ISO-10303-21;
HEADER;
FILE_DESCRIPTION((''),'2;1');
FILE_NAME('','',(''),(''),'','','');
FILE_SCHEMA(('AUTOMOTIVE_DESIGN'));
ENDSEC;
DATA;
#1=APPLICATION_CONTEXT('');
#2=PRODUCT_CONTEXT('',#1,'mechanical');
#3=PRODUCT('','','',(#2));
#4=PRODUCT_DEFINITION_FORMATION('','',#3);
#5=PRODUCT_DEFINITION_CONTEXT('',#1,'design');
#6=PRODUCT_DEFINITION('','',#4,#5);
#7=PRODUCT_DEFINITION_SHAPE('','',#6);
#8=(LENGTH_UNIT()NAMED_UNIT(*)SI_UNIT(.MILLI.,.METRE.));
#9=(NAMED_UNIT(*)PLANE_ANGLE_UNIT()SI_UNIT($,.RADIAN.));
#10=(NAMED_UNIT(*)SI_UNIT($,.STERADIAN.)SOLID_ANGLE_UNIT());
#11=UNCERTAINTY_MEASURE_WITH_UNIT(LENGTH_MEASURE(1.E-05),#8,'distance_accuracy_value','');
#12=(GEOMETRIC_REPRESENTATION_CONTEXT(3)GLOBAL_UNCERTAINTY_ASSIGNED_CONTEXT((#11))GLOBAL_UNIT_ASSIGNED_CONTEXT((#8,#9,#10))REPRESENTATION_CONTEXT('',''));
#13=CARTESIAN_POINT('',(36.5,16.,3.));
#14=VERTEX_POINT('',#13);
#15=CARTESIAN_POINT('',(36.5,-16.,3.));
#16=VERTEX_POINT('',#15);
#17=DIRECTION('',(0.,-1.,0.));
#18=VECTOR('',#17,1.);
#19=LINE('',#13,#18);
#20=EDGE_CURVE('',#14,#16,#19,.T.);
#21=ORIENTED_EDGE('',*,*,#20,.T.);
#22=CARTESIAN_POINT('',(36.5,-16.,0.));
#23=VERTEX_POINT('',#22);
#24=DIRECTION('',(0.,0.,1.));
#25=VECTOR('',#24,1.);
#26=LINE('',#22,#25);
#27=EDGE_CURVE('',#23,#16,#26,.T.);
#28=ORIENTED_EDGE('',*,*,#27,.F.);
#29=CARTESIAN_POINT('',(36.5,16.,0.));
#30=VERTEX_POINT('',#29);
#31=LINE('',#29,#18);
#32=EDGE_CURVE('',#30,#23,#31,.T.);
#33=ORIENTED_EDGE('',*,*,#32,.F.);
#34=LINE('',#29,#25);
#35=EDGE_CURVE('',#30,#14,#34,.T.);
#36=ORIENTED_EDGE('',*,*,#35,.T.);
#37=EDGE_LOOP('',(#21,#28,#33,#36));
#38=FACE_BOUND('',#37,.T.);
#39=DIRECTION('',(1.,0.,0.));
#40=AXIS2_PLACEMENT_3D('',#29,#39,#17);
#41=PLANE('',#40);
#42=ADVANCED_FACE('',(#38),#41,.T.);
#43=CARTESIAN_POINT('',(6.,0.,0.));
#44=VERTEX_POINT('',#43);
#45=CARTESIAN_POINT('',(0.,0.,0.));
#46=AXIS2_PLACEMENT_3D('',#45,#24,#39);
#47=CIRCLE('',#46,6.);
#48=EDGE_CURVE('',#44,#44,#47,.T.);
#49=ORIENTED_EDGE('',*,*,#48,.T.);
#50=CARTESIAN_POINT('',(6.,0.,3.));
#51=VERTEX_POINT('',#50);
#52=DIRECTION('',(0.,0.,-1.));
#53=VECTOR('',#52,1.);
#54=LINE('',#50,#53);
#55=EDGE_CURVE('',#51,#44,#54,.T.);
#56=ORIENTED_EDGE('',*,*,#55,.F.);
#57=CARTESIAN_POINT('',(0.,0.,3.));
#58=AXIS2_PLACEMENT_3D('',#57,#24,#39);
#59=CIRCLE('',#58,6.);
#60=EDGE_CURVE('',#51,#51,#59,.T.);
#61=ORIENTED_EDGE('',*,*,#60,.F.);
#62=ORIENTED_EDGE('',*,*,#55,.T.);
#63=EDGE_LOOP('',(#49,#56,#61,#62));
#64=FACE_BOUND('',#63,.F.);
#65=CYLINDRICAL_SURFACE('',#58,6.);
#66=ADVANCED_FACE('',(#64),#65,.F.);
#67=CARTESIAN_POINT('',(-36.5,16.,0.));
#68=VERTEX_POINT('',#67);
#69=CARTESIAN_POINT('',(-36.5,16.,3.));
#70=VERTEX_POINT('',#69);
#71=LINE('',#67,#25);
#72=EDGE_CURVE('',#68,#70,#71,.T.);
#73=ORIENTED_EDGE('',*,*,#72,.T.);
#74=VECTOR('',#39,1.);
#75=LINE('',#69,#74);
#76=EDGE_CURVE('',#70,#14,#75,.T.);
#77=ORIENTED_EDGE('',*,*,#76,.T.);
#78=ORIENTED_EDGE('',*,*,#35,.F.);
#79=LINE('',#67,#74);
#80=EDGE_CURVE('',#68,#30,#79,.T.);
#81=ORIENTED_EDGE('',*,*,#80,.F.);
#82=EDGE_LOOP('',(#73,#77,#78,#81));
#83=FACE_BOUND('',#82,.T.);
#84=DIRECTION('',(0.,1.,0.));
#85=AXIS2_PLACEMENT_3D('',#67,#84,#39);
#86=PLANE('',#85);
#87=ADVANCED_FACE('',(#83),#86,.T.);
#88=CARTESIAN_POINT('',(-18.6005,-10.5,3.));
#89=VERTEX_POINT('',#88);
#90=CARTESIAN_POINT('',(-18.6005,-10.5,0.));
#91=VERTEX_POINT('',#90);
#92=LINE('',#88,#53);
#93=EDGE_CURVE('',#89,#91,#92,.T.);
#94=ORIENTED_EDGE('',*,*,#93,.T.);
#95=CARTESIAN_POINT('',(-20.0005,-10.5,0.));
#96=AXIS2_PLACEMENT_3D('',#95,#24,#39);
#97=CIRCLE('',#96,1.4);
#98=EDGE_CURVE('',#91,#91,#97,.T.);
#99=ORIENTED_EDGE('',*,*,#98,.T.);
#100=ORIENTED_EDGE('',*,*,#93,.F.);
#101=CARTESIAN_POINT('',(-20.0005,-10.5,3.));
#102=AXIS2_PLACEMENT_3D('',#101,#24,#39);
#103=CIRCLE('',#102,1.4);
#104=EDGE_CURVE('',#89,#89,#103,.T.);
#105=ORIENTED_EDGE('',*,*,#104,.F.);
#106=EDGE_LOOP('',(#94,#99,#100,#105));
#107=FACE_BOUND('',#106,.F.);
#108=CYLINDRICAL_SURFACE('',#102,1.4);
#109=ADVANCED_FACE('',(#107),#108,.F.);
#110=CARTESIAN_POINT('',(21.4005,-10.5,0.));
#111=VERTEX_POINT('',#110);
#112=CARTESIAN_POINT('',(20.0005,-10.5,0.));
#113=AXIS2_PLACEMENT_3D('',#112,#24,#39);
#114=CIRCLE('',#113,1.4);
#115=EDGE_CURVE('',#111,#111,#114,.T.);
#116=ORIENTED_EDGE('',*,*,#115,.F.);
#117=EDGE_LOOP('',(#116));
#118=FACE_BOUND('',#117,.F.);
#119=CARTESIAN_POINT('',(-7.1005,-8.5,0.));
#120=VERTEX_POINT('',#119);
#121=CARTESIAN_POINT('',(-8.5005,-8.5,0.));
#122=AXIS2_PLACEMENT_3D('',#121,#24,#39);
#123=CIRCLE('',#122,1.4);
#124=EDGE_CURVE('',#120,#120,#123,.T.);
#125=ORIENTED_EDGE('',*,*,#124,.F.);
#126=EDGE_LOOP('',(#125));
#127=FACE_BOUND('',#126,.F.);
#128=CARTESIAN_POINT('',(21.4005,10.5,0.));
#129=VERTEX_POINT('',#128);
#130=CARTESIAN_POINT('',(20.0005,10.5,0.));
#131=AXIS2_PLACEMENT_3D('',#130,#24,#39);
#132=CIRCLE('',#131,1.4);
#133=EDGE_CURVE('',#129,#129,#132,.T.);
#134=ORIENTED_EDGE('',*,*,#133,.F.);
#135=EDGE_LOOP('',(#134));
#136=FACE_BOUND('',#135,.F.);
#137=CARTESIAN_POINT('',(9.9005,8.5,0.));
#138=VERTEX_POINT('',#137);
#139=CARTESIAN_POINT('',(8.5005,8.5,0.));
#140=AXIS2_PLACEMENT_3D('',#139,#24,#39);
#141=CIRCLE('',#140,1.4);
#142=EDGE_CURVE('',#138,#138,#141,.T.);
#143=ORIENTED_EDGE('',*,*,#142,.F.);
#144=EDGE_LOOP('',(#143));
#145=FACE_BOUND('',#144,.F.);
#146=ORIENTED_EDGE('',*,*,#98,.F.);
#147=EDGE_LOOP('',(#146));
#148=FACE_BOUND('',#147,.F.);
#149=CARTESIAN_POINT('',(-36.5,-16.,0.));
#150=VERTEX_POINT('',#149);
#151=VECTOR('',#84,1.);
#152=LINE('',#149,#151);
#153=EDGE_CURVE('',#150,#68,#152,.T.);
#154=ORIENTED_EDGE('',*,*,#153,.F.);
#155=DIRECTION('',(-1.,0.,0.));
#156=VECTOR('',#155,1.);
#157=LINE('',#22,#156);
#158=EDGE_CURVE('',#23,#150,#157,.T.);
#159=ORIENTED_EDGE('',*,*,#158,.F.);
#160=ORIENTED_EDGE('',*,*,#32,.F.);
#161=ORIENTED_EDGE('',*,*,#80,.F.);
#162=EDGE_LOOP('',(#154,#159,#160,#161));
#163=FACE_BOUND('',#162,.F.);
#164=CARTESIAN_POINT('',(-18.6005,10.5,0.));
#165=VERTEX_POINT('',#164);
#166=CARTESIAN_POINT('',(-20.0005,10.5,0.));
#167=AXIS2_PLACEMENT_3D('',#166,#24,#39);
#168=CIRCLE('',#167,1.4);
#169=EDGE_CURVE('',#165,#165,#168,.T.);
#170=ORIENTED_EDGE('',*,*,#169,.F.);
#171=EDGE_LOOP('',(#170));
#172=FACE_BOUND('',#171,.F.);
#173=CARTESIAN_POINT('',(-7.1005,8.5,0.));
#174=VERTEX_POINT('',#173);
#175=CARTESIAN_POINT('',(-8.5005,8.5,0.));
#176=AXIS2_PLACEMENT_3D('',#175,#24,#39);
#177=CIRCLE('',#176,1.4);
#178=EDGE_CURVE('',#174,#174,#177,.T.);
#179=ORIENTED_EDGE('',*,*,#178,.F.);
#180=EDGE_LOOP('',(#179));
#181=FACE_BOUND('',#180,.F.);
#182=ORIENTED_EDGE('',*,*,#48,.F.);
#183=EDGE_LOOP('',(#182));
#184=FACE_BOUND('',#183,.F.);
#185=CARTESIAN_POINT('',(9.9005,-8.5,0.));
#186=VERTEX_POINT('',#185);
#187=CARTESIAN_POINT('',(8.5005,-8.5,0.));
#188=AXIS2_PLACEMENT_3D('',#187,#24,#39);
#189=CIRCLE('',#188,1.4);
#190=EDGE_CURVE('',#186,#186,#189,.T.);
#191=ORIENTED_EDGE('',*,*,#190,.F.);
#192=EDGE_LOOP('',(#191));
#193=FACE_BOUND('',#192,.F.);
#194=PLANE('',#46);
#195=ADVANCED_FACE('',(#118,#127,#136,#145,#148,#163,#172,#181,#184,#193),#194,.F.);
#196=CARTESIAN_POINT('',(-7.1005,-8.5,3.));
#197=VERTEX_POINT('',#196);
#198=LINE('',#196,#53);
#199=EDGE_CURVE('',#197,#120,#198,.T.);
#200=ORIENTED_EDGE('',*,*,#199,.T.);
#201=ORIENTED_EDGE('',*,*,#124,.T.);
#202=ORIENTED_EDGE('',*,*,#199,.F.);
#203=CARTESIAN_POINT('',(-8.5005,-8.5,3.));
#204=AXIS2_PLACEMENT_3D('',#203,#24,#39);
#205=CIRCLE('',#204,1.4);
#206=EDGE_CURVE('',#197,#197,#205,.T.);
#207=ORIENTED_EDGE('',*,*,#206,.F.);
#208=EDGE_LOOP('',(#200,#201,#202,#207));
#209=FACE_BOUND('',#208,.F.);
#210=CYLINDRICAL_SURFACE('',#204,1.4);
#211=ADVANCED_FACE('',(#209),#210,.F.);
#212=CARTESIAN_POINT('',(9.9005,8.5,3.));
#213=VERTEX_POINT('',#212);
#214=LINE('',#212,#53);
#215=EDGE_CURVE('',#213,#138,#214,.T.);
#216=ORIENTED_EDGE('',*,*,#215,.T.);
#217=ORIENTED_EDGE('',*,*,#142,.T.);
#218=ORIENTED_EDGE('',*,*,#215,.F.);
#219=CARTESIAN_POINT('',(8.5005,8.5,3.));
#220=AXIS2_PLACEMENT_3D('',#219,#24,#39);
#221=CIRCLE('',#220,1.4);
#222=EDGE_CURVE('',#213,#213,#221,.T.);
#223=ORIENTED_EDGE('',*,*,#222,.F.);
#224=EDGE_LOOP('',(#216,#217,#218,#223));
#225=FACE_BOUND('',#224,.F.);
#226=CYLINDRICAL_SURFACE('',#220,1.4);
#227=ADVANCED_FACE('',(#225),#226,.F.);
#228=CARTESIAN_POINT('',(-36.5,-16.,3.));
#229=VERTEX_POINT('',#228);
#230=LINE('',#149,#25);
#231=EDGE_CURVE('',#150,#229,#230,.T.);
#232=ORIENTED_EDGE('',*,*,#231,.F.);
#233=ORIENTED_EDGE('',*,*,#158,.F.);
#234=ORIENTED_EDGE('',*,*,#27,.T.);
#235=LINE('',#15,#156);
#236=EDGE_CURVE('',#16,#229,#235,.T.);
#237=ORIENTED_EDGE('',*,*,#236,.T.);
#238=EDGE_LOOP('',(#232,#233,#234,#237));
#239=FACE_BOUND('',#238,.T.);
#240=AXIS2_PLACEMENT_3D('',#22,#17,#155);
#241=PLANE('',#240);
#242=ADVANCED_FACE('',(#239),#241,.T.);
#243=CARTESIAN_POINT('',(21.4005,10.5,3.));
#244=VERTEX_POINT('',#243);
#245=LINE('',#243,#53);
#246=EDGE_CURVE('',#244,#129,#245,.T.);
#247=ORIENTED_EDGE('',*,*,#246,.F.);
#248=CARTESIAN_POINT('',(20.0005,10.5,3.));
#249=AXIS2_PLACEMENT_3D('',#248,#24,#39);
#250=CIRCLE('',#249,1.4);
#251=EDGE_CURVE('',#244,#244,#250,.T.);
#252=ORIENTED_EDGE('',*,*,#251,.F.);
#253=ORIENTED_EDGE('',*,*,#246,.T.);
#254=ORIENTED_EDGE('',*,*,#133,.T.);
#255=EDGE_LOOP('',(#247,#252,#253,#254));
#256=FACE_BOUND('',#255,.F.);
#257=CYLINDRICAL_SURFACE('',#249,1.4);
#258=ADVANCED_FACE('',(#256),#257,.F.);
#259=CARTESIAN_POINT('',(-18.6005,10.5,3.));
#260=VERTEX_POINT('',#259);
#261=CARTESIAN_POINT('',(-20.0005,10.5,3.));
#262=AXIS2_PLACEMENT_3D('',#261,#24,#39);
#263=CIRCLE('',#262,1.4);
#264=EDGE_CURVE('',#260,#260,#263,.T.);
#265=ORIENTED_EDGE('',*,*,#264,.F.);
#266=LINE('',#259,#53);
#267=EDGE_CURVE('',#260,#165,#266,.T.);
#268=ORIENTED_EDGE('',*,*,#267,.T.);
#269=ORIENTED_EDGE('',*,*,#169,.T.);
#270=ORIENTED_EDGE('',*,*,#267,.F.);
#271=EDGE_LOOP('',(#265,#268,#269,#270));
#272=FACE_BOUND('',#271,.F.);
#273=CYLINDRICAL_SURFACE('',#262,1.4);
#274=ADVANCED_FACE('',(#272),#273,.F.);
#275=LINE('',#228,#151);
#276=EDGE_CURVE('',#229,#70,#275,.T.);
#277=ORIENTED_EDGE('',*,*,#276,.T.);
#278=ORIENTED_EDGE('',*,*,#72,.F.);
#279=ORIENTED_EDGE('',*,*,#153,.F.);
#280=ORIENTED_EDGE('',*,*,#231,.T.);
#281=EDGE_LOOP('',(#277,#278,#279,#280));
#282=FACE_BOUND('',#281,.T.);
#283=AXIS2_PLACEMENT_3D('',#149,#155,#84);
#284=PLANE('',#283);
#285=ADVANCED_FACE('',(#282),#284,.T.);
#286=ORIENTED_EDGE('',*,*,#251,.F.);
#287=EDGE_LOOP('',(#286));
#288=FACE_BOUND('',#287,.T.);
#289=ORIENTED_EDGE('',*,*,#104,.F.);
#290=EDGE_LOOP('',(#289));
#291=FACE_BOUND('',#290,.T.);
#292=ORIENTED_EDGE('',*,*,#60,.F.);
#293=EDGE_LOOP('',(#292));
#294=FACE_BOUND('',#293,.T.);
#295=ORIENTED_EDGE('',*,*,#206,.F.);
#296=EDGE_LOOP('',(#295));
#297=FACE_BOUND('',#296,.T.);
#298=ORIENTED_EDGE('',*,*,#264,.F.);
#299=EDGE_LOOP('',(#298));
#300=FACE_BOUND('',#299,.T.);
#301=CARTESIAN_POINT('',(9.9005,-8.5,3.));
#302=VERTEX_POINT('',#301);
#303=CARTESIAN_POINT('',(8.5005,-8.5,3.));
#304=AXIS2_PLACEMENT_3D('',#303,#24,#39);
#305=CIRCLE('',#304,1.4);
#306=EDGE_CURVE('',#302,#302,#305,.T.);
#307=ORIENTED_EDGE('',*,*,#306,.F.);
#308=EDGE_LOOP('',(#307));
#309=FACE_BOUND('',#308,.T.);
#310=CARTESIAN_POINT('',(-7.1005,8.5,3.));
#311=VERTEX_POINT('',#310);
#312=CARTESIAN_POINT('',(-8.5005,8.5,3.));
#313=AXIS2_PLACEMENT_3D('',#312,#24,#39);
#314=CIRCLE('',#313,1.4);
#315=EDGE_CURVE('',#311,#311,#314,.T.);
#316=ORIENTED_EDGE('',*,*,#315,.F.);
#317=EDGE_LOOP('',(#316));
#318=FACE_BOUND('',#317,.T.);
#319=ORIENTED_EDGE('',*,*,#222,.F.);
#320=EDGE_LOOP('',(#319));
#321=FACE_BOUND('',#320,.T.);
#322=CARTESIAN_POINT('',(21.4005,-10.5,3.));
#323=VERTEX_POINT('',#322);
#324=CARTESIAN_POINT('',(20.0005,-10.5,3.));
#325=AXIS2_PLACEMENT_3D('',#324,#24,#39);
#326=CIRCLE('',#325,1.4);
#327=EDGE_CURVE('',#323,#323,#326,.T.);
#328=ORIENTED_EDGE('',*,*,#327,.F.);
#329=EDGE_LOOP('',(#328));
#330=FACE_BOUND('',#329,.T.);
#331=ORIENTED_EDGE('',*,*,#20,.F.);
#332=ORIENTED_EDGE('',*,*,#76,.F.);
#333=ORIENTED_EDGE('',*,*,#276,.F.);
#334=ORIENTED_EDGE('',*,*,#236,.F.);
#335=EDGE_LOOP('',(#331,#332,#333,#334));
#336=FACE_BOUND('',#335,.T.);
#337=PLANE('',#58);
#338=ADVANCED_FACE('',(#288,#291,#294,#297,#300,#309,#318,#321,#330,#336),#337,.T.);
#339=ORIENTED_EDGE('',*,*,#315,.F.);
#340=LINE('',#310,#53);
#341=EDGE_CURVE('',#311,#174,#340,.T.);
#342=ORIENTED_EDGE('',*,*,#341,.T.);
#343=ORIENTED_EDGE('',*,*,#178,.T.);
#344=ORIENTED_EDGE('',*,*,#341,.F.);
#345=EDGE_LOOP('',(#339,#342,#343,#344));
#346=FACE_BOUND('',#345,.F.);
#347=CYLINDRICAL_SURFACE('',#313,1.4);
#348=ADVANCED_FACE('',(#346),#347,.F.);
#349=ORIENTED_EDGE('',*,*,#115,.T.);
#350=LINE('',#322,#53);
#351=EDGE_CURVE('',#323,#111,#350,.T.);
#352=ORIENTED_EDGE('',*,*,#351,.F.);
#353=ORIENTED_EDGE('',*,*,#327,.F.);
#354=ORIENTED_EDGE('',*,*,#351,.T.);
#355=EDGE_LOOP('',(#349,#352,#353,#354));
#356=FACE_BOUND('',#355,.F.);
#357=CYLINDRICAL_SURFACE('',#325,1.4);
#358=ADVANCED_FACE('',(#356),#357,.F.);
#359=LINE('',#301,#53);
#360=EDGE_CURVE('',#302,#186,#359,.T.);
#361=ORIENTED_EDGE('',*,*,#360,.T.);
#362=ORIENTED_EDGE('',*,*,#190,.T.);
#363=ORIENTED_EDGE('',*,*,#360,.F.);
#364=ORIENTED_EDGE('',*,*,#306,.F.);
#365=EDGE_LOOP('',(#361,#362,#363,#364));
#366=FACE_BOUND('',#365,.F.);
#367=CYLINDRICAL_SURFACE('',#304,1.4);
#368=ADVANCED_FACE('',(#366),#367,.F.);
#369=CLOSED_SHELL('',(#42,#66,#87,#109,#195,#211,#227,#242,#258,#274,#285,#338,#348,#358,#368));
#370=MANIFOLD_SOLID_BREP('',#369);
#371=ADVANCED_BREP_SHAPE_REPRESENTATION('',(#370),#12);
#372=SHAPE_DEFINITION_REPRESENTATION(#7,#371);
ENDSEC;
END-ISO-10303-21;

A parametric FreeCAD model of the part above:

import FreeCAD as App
import Part
import Sketcher


def add_polygon(sketch, points):
    """Adds a closed chain of lines whose ends are joined by coincident constraints."""
    first, n = sketch.GeometryCount, len(points)
    for a, b in zip(points, points[1:] + points[:1]):
        sketch.addGeometry(Part.LineSegment(App.Vector(*a, 0), App.Vector(*b, 0)), False)
    for i in range(n):
        sketch.addConstraint(Sketcher.Constraint("Coincident", first + i, 2, first + (i + 1) % n, 1))

doc = App.newDocument("Part")
params = doc.addObject("Spreadsheet::Sheet", "Params")
for row, (alias, value) in enumerate([
    ("sketch1_width", "73 mm"),
    ("sketch1_height", "32 mm"),
    ("pad1_length", "3 mm"),
    ("sketch2_diameter", "12 mm"),
    ("sketch2_diameter2", "2.8 mm"),
], start=1):
    params.set(f"A{row}", alias)
    params.set(f"B{row}", "=" + value)
    params.setAlias(f"B{row}", alias)

body = doc.addObject("PartDesign::Body", "Body")

# Sketch on XY plane
sketch1 = doc.addObject("Sketcher::SketchObject", "Sketch")
body.addObject(sketch1)
sketch1.AttachmentSupport = (doc.XY_Plane, [""])
sketch1.MapMode = "FlatFace"
add_polygon(sketch1, [(-36, -16), (36, -16), (36, 16), (-36, 16)])  # lines 0-3
sketch1.addConstraint([
    Sketcher.Constraint("Horizontal", 0),
    Sketcher.Constraint("Vertical", 1),
    Sketcher.Constraint("Horizontal", 2),
    Sketcher.Constraint("Vertical", 3),
    Sketcher.Constraint("Symmetric", 0, 2, 2, 2, -1, 1),
    Sketcher.Constraint("DistanceX", 0, 1, 0, 2, 73.0),
    Sketcher.Constraint("DistanceY", 1, 1, 1, 2, 32.0),
])
sketch1.setExpression("Constraints[9]", "Params.sketch1_width")
sketch1.setExpression("Constraints[10]", "Params.sketch1_height")
pad1 = doc.addObject("PartDesign::Pad", "Pad")
body.addObject(pad1)
pad1.Profile = sketch1
pad1.setExpression("Length", "Params.pad1_length")

# Sketch on XY plane
sketch2 = doc.addObject("Sketcher::SketchObject", "Sketch001")
body.addObject(sketch2)
sketch2.AttachmentSupport = (doc.XY_Plane, [""])
sketch2.MapMode = "FlatFace"
sketch2.AttachmentOffset = App.Placement(App.Vector(0, 0, 3), App.Rotation())
sketch2.addGeometry([
    Part.Circle(App.Vector(-20, 10.5, 0), App.Vector(0, 0, 1), 1.4),  # 0
    Part.Circle(App.Vector(-8.5, 8.5, 0), App.Vector(0, 0, 1), 1.4),  # 1
    Part.Circle(App.Vector(20, 10.5, 0), App.Vector(0, 0, 1), 1.4),  # 2
    Part.Circle(App.Vector(8.5, 8.5, 0), App.Vector(0, 0, 1), 1.4),  # 3
    Part.Circle(App.Vector(-20, -10.5, 0), App.Vector(0, 0, 1), 1.4),  # 4
    Part.Circle(App.Vector(-8.5, -8.5, 0), App.Vector(0, 0, 1), 1.4),  # 5
    Part.Circle(App.Vector(8.5, -8.5, 0), App.Vector(0, 0, 1), 1.4),  # 6
    Part.Circle(App.Vector(20, -10.5, 0), App.Vector(0, 0, 1), 1.4),  # 7
    Part.Circle(App.Vector(0, 0, 0), App.Vector(0, 0, 1), 6),  # 8
], False)
sketch2.addConstraint([
    Sketcher.Constraint("Coincident", 8, 3, -1, 1),
    Sketcher.Constraint("Equal", 0, 1),
    Sketcher.Constraint("Equal", 1, 2),
    Sketcher.Constraint("Equal", 2, 3),
    Sketcher.Constraint("Equal", 3, 4),
    Sketcher.Constraint("Equal", 4, 5),
    Sketcher.Constraint("Equal", 5, 6),
    Sketcher.Constraint("Equal", 6, 7),
    Sketcher.Constraint("Symmetric", 2, 3, 4, 3, -1, 1),
    Sketcher.Constraint("Symmetric", 3, 3, 5, 3, -1, 1),
    Sketcher.Constraint("Symmetric", 1, 3, 6, 3, -1, 1),
    Sketcher.Constraint("Symmetric", 0, 3, 7, 3, -1, 1),
    Sketcher.Constraint("Symmetric", 0, 3, 2, 3, -2),
    Sketcher.Constraint("Symmetric", 1, 3, 3, 3, -2),
    Sketcher.Constraint("Diameter", 8, 12.0),
    Sketcher.Constraint("Diameter", 0, 2.8),
    Sketcher.Constraint("DistanceY", 1, 3, 0, 3, 2.0),
    Sketcher.Constraint("DistanceY", 4, 3, 0, 3, 21.0),
    Sketcher.Constraint("DistanceX", 0, 3, 1, 3, 11.5),
    Sketcher.Constraint("DistanceX", 1, 3, 2, 3, 28.501),
])
sketch2.setExpression("Constraints[14]", "Params.sketch2_diameter")
sketch2.setExpression("Constraints[15]", "Params.sketch2_diameter2")
pocket1 = doc.addObject("PartDesign::Pocket", "Pocket")
body.addObject(pocket1)
pocket1.Profile = sketch2
pocket1.Type = "ThroughAll"

doc.recompute()
